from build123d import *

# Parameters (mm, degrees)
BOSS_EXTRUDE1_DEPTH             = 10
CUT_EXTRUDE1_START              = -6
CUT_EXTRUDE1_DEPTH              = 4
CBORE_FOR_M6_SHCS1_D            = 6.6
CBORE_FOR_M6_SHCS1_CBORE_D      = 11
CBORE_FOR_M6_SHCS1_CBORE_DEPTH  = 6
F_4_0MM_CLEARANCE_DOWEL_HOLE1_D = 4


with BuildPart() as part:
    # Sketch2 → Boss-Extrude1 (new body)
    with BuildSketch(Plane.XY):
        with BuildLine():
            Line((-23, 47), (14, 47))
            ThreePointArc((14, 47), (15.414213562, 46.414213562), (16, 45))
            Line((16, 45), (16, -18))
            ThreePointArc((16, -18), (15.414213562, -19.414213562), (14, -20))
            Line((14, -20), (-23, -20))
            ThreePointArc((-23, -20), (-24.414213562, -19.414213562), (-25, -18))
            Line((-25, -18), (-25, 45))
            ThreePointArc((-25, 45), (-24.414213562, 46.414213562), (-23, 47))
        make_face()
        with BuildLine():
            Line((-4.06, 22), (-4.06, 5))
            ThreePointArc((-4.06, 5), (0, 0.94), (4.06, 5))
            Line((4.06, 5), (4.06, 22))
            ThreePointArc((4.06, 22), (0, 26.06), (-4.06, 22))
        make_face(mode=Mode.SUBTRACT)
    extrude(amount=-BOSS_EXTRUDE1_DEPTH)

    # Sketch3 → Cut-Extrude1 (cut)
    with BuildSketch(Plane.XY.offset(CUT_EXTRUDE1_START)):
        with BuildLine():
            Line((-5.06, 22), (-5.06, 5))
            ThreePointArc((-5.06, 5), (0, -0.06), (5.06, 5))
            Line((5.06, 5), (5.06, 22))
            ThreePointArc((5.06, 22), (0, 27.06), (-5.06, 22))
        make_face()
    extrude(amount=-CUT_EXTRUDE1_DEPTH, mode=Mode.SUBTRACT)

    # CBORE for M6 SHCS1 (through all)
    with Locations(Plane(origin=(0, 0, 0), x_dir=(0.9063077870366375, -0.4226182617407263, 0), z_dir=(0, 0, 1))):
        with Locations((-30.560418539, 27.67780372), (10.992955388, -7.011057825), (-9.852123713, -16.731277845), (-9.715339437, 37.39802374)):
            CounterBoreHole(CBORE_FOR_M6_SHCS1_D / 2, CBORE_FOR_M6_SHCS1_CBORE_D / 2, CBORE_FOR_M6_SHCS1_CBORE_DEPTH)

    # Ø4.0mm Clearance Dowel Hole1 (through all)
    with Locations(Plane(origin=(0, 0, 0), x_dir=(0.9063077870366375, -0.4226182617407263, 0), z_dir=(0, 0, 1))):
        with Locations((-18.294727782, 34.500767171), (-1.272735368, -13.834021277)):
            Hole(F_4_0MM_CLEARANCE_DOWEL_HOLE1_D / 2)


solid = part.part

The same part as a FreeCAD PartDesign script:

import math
import FreeCAD as App
import Part
import Sketcher
from FreeCAD import Vector
Q = App.Units.Quantity

doc = App.newDocument("Part")
body = doc.addObject("PartDesign::Body", "Body")

# Sketch on XY plane
sketch1 = body.newObject("Sketcher::SketchObject", "Sketch")
sketch1.AttachmentSupport = (doc.getObject("XY_Plane"), [""])
sketch1.MapMode = "FlatFace"
sketch1.addGeometry(Part.LineSegment(Vector(14, 47, 0), Vector(-23, 47, 0)), False)
sketch1.addGeometry(Part.ArcOfCircle(Part.Circle(Vector(-23, 45, 0), Vector(0, 0, 1), 2), math.radians(90), math.radians(180)), False)
sketch1.addGeometry(Part.LineSegment(Vector(-25, 45, 0), Vector(-25, -18, 0)), False)
sketch1.addGeometry(Part.ArcOfCircle(Part.Circle(Vector(-23, -18, 0), Vector(0, 0, 1), 2), math.radians(-180), math.radians(-90)), False)
sketch1.addGeometry(Part.LineSegment(Vector(-23, -20, 0), Vector(14, -20, 0)), False)
sketch1.addGeometry(Part.ArcOfCircle(Part.Circle(Vector(14, -18, 0), Vector(0, 0, 1), 2), math.radians(-90), math.radians(0)), False)
sketch1.addGeometry(Part.LineSegment(Vector(16, -18, 0), Vector(16, 45, 0)), False)
sketch1.addGeometry(Part.ArcOfCircle(Part.Circle(Vector(14, 45, 0), Vector(0, 0, 1), 2), math.radians(0), math.radians(90)), False)
sketch1.addGeometry(Part.ArcOfCircle(Part.Circle(Vector(0, 22, 0), Vector(0, 0, 1), 4.1), math.radians(0), math.radians(180)), False)
sketch1.addGeometry(Part.LineSegment(Vector(4.1, 22, 0), Vector(4.1, 5, 0)), False)
sketch1.addGeometry(Part.ArcOfCircle(Part.Circle(Vector(0, 5, 0), Vector(0, 0, 1), 4.1), math.radians(180), math.radians(360)), False)
sketch1.addGeometry(Part.LineSegment(Vector(-4.1, 5, 0), Vector(-4.1, 22, 0)), False)
sketch1.addConstraint(Sketcher.Constraint("Tangent", 0, 2, 1, 1))
sketch1.addConstraint(Sketcher.Constraint("Tangent", 1, 2, 2, 1))
sketch1.addConstraint(Sketcher.Constraint("Tangent", 2, 2, 3, 1))
sketch1.addConstraint(Sketcher.Constraint("Tangent", 3, 2, 4, 1))
sketch1.addConstraint(Sketcher.Constraint("Tangent", 4, 2, 5, 1))
sketch1.addConstraint(Sketcher.Constraint("Tangent", 5, 2, 6, 1))
sketch1.addConstraint(Sketcher.Constraint("Tangent", 6, 2, 7, 1))
sketch1.addConstraint(Sketcher.Constraint("Tangent", 7, 2, 0, 1))
sketch1.addConstraint(Sketcher.Constraint("Tangent", 8, 1, 9, 1))
sketch1.addConstraint(Sketcher.Constraint("Tangent", 9, 2, 10, 2))
sketch1.addConstraint(Sketcher.Constraint("Tangent", 10, 1, 11, 1))
sketch1.addConstraint(Sketcher.Constraint("Tangent", 11, 2, 8, 2))
sketch1.addConstraint(Sketcher.Constraint("Horizontal", 0))
sketch1.addConstraint(Sketcher.Constraint("Vertical", 2))
sketch1.addConstraint(Sketcher.Constraint("Horizontal", 4))
sketch1.addConstraint(Sketcher.Constraint("Vertical", 6))
sketch1.addConstraint(Sketcher.Constraint("Vertical", 9))
sketch1.addConstraint(Sketcher.Constraint("Vertical", 11))
sketch1.addConstraint(Sketcher.Constraint("Equal", 1, 3))
sketch1.addConstraint(Sketcher.Constraint("Equal", 3, 5))
sketch1.addConstraint(Sketcher.Constraint("Equal", 5, 7))
sketch1.addConstraint(Sketcher.Constraint("PointOnObject", 8, 3, -2))
sketch1.addConstraint(Sketcher.Constraint("Radius", 1, Q("2 mm")))
sketch1.addConstraint(Sketcher.Constraint("DistanceX", 0, 2, 0, 1, Q("37 mm")))
sketch1.addConstraint(Sketcher.Constraint("DistanceY", 2, 2, 2, 1, Q("63 mm")))
sketch1.addConstraint(Sketcher.Constraint("DistanceY", 9, 2, 9, 1, Q("17 mm")))
sketch1.addConstraint(Sketcher.Constraint("Radius", 8, Q("4.06 mm")))
sketch1.addConstraint(Sketcher.Constraint("DistanceX", 1, 3, -1, 1, Q("23 mm")))
sketch1.addConstraint(Sketcher.Constraint("DistanceY", -1, 1, 1, 3, Q("45 mm")))
sketch1.addConstraint(Sketcher.Constraint("DistanceY", -1, 1, 8, 3, Q("22 mm")))
pad1 = body.newObject("PartDesign::Pad", "Pad")
pad1.Profile = sketch1
pad1.Length = 10
pad1.Reversed = True

# Sketch on XY plane
sketch2 = body.newObject("Sketcher::SketchObject", "Sketch001")
sketch2.AttachmentSupport = (doc.getObject("XY_Plane"), [""])
sketch2.MapMode = "FlatFace"
sketch2.AttachmentOffset = App.Placement(Vector(0, 0, -6), App.Rotation())
sketch2.addGeometry(Part.LineSegment(Vector(-5, 22, 0), Vector(-5, 5, 0)), False)
sketch2.addGeometry(Part.ArcOfCircle(Part.Circle(Vector(0, 5, 0), Vector(0, 0, 1), 5), math.radians(180), math.radians(360)), False)
sketch2.addGeometry(Part.LineSegment(Vector(5, 5, 0), Vector(5, 22, 0)), False)
sketch2.addGeometry(Part.ArcOfCircle(Part.Circle(Vector(0, 22, 0), Vector(0, 0, 1), 5), math.radians(0), math.radians(180)), False)
sketch2.addConstraint(Sketcher.Constraint("Tangent", 0, 2, 1, 1))
sketch2.addConstraint(Sketcher.Constraint("Tangent", 1, 2, 2, 1))
sketch2.addConstraint(Sketcher.Constraint("Tangent", 2, 2, 3, 1))
sketch2.addConstraint(Sketcher.Constraint("Tangent", 3, 2, 0, 1))
sketch2.addConstraint(Sketcher.Constraint("Vertical", 0))
sketch2.addConstraint(Sketcher.Constraint("Vertical", 2))
sketch2.addConstraint(Sketcher.Constraint("PointOnObject", 1, 3, -2))
sketch2.addConstraint(Sketcher.Constraint("DistanceY", 0, 2, 0, 1, Q("17 mm")))
sketch2.addConstraint(Sketcher.Constraint("Radius", 1, Q("5.06 mm")))
sketch2.addConstraint(Sketcher.Constraint("DistanceY", -1, 1, 1, 3, Q("5 mm")))
pocket1 = body.newObject("PartDesign::Pocket", "Pocket")
pocket1.Profile = sketch2
pocket1.Length = 4

# Sketch on XY plane
sketch3 = body.newObject("Sketcher::SketchObject", "Sketch002")
sketch3.AttachmentSupport = (doc.getObject("XY_Plane"), [""])
sketch3.MapMode = "FlatFace"
sketch3.addGeometry(Part.Circle(Vector(-16, 38, 0), Vector(0, 0, 1), 3.3), False)
sketch3.addGeometry(Part.Circle(Vector(7, -11, 0), Vector(0, 0, 1), 3.3), False)
sketch3.addGeometry(Part.Circle(Vector(-16, -11, 0), Vector(0, 0, 1), 3.3), False)
sketch3.addGeometry(Part.Circle(Vector(7, 38, 0), Vector(0, 0, 1), 3.3), False)
sketch3.addConstraint(Sketcher.Constraint("Equal", 0, 1))
sketch3.addConstraint(Sketcher.Constraint("Equal", 1, 2))
sketch3.addConstraint(Sketcher.Constraint("Equal", 2, 3))
sketch3.addConstraint(Sketcher.Constraint("Horizontal", 1, 3, 2, 3))
sketch3.addConstraint(Sketcher.Constraint("Horizontal", 0, 3, 3, 3))
sketch3.addConstraint(Sketcher.Constraint("Vertical", 0, 3, 2, 3))
sketch3.addConstraint(Sketcher.Constraint("Vertical", 1, 3, 3, 3))
sketch3.addConstraint(Sketcher.Constraint("Diameter", 0, Q("6.6 mm")))
sketch3.addConstraint(Sketcher.Constraint("DistanceX", 0, 3, -1, 1, Q("16 mm")))
sketch3.addConstraint(Sketcher.Constraint("DistanceY", -1, 1, 0, 3, Q("38 mm")))
sketch3.addConstraint(Sketcher.Constraint("DistanceX", -1, 1, 1, 3, Q("7 mm")))
sketch3.addConstraint(Sketcher.Constraint("DistanceY", 1, 3, -1, 1, Q("11 mm")))
doc.recompute()
hole = body.newObject("PartDesign::Hole", "Hole")
hole.Profile = sketch3
hole.ThreadType = "None"
hole.Diameter = 6.6
hole.DepthType = "ThroughAll"
hole.HoleCutType = "Counterbore"
hole.HoleCutDiameter = 11
hole.HoleCutDepth = 6

# Sketch on XY plane
sketch4 = body.newObject("Sketcher::SketchObject", "Sketch003")
sketch4.AttachmentSupport = (doc.getObject("XY_Plane"), [""])
sketch4.MapMode = "FlatFace"
sketch4.addGeometry(Part.Circle(Vector(-2, 39, 0), Vector(0, 0, 1), 2), False)
sketch4.addGeometry(Part.Circle(Vector(-7, -12, 0), Vector(0, 0, 1), 2), False)
sketch4.addConstraint(Sketcher.Constraint("Equal", 0, 1))
sketch4.addConstraint(Sketcher.Constraint("Diameter", 0, Q("4 mm")))
sketch4.addConstraint(Sketcher.Constraint("DistanceX", 0, 3, -1, 1, Q("2 mm")))
sketch4.addConstraint(Sketcher.Constraint("DistanceY", -1, 1, 0, 3, Q("39 mm")))
sketch4.addConstraint(Sketcher.Constraint("DistanceX", 1, 3, -1, 1, Q("7 mm")))
sketch4.addConstraint(Sketcher.Constraint("DistanceY", 1, 3, -1, 1, Q("12 mm")))
doc.recompute()
hole2 = body.newObject("PartDesign::Hole", "Hole001")
hole2.Profile = sketch4
hole2.ThreadType = "None"
hole2.Diameter = 4
hole2.DepthType = "ThroughAll"

doc.recompute()
